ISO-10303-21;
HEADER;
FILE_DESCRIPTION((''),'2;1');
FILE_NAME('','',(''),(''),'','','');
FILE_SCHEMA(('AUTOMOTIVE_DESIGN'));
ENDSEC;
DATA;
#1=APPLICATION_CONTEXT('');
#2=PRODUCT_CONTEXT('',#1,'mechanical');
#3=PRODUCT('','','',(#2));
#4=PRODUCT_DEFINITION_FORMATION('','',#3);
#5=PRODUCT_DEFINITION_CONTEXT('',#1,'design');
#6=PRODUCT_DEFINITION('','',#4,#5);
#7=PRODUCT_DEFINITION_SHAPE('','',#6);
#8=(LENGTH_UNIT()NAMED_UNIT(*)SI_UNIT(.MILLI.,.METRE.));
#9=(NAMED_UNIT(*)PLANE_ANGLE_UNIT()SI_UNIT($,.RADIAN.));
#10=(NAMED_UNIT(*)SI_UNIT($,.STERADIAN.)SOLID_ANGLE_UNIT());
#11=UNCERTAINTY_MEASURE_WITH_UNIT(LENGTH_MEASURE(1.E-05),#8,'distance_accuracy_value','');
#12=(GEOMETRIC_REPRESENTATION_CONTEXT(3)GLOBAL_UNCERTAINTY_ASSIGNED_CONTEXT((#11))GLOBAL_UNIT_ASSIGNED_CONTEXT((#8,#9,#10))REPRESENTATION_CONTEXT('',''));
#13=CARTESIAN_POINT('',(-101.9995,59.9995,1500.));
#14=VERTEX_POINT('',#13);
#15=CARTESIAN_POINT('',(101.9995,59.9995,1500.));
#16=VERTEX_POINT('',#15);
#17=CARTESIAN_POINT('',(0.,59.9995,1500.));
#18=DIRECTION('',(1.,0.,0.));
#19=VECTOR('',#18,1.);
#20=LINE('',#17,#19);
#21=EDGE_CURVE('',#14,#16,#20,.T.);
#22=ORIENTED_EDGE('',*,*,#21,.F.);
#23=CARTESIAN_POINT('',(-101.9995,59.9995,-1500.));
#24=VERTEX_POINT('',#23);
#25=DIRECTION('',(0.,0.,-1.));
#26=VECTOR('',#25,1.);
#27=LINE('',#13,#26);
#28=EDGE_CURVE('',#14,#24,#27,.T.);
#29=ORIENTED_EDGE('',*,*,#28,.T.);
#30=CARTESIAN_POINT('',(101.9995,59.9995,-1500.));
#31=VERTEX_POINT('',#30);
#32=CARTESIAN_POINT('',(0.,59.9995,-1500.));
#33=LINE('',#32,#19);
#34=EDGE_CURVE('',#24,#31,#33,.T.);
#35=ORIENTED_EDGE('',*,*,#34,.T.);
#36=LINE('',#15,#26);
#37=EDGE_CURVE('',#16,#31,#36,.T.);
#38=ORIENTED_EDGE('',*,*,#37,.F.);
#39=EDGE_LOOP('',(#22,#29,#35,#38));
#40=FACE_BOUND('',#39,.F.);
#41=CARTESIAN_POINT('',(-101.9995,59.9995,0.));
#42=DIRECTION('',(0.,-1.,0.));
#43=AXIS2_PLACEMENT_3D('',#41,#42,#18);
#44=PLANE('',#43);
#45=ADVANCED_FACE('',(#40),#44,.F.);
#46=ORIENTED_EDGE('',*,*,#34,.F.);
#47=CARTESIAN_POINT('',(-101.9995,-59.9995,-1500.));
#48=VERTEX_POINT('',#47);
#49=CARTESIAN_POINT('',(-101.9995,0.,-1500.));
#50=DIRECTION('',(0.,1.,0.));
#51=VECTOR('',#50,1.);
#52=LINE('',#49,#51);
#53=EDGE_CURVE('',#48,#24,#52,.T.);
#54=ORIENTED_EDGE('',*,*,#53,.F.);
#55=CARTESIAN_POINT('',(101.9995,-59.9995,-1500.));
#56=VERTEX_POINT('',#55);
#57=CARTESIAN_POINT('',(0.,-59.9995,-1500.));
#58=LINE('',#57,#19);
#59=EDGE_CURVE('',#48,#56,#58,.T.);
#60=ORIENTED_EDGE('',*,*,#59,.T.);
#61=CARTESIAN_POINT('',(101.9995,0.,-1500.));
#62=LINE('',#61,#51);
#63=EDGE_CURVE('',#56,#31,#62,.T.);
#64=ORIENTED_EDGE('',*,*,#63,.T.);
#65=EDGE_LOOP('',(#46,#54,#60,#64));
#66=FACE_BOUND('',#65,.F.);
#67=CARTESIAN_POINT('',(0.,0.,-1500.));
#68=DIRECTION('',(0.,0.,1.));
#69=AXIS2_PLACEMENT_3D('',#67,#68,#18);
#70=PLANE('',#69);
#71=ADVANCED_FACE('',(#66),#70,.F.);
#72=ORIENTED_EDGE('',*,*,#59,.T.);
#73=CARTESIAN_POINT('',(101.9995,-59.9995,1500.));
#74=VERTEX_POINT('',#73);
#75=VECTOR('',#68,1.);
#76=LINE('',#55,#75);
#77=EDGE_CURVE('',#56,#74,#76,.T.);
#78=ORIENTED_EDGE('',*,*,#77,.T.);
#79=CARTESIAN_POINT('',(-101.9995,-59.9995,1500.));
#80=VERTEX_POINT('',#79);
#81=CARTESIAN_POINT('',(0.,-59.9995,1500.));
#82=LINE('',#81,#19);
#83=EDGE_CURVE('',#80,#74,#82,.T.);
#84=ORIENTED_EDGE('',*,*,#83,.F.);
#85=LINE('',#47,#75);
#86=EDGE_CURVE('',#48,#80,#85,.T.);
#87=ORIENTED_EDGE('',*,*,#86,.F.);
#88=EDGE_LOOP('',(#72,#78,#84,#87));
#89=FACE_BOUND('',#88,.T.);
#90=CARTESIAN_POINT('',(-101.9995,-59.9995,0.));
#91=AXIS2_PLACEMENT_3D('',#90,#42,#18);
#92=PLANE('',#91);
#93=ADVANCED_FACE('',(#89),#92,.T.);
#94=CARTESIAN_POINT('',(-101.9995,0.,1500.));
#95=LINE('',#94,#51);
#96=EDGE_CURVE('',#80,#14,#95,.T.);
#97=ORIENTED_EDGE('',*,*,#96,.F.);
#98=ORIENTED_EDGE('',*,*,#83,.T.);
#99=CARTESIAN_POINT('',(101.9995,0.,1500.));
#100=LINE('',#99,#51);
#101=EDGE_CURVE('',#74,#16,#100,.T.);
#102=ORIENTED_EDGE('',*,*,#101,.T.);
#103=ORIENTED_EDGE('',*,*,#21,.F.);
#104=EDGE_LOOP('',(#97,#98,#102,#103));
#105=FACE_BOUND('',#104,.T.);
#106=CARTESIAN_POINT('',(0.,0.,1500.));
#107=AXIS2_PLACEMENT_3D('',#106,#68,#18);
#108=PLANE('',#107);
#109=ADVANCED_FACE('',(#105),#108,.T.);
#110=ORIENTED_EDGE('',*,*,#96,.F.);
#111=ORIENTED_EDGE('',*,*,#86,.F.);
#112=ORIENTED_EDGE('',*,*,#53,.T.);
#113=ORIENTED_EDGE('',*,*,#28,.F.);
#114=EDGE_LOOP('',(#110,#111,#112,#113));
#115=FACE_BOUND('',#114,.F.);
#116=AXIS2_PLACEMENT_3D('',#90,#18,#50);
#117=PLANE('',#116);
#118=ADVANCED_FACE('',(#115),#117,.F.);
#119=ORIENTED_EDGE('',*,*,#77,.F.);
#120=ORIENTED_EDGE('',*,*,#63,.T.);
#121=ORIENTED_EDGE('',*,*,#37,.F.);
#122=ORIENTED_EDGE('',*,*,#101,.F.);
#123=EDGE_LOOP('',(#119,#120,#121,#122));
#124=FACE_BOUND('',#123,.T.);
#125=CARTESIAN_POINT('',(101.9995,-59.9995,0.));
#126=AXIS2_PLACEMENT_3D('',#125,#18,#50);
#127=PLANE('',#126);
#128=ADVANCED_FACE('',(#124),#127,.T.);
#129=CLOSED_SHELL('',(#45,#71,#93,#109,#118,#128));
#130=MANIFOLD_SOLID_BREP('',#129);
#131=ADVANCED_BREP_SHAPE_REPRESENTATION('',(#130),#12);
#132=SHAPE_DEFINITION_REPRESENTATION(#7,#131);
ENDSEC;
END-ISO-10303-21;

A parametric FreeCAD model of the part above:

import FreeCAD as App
import Part
import Sketcher

V = App.Vector


def add_polygon(sketch, points):
    """Adds a closed chain of lines whose ends are joined by coincident constraints."""
    first, n = sketch.GeometryCount, len(points)
    for a, b in zip(points, points[1:] + points[:1]):
        sketch.addGeometry(Part.LineSegment(App.Vector(*a, 0), App.Vector(*b, 0)), False)
    for i in range(n):
        sketch.addConstraint(Sketcher.Constraint("Coincident", first + i, 2, first + (i + 1) % n, 1))

doc = App.newDocument("Part")
body = doc.addObject("PartDesign::Body", "Body")

# Sketch on XY plane
sketch1 = body.newObject("Sketcher::SketchObject", "Sketch")
sketch1.AttachmentSupport = (doc.getObject("XY_Plane"), [""])
sketch1.MapMode = "FlatFace"
add_polygon(sketch1, [(-102, 60), (-102, -60), (102, -60), (102, 60)])  # lines 0-3
sketch1.addConstraint([
    Sketcher.Constraint("Vertical", 0),
    Sketcher.Constraint("Horizontal", 1),
    Sketcher.Constraint("Vertical", 2),
    Sketcher.Constraint("Horizontal", 3),
    Sketcher.Constraint("Symmetric", 0, 2, 2, 2, -1, 1),
    Sketcher.Constraint("DistanceX", 1, 1, 1, 2, 203.999),
    Sketcher.Constraint("DistanceY", 0, 2, 0, 1, 119.999),
])
pad1 = body.newObject("PartDesign::Pad", "Pad")
pad1.Profile = sketch1
pad1.Length = 3000
pad1.Midplane = True

doc.recompute()
